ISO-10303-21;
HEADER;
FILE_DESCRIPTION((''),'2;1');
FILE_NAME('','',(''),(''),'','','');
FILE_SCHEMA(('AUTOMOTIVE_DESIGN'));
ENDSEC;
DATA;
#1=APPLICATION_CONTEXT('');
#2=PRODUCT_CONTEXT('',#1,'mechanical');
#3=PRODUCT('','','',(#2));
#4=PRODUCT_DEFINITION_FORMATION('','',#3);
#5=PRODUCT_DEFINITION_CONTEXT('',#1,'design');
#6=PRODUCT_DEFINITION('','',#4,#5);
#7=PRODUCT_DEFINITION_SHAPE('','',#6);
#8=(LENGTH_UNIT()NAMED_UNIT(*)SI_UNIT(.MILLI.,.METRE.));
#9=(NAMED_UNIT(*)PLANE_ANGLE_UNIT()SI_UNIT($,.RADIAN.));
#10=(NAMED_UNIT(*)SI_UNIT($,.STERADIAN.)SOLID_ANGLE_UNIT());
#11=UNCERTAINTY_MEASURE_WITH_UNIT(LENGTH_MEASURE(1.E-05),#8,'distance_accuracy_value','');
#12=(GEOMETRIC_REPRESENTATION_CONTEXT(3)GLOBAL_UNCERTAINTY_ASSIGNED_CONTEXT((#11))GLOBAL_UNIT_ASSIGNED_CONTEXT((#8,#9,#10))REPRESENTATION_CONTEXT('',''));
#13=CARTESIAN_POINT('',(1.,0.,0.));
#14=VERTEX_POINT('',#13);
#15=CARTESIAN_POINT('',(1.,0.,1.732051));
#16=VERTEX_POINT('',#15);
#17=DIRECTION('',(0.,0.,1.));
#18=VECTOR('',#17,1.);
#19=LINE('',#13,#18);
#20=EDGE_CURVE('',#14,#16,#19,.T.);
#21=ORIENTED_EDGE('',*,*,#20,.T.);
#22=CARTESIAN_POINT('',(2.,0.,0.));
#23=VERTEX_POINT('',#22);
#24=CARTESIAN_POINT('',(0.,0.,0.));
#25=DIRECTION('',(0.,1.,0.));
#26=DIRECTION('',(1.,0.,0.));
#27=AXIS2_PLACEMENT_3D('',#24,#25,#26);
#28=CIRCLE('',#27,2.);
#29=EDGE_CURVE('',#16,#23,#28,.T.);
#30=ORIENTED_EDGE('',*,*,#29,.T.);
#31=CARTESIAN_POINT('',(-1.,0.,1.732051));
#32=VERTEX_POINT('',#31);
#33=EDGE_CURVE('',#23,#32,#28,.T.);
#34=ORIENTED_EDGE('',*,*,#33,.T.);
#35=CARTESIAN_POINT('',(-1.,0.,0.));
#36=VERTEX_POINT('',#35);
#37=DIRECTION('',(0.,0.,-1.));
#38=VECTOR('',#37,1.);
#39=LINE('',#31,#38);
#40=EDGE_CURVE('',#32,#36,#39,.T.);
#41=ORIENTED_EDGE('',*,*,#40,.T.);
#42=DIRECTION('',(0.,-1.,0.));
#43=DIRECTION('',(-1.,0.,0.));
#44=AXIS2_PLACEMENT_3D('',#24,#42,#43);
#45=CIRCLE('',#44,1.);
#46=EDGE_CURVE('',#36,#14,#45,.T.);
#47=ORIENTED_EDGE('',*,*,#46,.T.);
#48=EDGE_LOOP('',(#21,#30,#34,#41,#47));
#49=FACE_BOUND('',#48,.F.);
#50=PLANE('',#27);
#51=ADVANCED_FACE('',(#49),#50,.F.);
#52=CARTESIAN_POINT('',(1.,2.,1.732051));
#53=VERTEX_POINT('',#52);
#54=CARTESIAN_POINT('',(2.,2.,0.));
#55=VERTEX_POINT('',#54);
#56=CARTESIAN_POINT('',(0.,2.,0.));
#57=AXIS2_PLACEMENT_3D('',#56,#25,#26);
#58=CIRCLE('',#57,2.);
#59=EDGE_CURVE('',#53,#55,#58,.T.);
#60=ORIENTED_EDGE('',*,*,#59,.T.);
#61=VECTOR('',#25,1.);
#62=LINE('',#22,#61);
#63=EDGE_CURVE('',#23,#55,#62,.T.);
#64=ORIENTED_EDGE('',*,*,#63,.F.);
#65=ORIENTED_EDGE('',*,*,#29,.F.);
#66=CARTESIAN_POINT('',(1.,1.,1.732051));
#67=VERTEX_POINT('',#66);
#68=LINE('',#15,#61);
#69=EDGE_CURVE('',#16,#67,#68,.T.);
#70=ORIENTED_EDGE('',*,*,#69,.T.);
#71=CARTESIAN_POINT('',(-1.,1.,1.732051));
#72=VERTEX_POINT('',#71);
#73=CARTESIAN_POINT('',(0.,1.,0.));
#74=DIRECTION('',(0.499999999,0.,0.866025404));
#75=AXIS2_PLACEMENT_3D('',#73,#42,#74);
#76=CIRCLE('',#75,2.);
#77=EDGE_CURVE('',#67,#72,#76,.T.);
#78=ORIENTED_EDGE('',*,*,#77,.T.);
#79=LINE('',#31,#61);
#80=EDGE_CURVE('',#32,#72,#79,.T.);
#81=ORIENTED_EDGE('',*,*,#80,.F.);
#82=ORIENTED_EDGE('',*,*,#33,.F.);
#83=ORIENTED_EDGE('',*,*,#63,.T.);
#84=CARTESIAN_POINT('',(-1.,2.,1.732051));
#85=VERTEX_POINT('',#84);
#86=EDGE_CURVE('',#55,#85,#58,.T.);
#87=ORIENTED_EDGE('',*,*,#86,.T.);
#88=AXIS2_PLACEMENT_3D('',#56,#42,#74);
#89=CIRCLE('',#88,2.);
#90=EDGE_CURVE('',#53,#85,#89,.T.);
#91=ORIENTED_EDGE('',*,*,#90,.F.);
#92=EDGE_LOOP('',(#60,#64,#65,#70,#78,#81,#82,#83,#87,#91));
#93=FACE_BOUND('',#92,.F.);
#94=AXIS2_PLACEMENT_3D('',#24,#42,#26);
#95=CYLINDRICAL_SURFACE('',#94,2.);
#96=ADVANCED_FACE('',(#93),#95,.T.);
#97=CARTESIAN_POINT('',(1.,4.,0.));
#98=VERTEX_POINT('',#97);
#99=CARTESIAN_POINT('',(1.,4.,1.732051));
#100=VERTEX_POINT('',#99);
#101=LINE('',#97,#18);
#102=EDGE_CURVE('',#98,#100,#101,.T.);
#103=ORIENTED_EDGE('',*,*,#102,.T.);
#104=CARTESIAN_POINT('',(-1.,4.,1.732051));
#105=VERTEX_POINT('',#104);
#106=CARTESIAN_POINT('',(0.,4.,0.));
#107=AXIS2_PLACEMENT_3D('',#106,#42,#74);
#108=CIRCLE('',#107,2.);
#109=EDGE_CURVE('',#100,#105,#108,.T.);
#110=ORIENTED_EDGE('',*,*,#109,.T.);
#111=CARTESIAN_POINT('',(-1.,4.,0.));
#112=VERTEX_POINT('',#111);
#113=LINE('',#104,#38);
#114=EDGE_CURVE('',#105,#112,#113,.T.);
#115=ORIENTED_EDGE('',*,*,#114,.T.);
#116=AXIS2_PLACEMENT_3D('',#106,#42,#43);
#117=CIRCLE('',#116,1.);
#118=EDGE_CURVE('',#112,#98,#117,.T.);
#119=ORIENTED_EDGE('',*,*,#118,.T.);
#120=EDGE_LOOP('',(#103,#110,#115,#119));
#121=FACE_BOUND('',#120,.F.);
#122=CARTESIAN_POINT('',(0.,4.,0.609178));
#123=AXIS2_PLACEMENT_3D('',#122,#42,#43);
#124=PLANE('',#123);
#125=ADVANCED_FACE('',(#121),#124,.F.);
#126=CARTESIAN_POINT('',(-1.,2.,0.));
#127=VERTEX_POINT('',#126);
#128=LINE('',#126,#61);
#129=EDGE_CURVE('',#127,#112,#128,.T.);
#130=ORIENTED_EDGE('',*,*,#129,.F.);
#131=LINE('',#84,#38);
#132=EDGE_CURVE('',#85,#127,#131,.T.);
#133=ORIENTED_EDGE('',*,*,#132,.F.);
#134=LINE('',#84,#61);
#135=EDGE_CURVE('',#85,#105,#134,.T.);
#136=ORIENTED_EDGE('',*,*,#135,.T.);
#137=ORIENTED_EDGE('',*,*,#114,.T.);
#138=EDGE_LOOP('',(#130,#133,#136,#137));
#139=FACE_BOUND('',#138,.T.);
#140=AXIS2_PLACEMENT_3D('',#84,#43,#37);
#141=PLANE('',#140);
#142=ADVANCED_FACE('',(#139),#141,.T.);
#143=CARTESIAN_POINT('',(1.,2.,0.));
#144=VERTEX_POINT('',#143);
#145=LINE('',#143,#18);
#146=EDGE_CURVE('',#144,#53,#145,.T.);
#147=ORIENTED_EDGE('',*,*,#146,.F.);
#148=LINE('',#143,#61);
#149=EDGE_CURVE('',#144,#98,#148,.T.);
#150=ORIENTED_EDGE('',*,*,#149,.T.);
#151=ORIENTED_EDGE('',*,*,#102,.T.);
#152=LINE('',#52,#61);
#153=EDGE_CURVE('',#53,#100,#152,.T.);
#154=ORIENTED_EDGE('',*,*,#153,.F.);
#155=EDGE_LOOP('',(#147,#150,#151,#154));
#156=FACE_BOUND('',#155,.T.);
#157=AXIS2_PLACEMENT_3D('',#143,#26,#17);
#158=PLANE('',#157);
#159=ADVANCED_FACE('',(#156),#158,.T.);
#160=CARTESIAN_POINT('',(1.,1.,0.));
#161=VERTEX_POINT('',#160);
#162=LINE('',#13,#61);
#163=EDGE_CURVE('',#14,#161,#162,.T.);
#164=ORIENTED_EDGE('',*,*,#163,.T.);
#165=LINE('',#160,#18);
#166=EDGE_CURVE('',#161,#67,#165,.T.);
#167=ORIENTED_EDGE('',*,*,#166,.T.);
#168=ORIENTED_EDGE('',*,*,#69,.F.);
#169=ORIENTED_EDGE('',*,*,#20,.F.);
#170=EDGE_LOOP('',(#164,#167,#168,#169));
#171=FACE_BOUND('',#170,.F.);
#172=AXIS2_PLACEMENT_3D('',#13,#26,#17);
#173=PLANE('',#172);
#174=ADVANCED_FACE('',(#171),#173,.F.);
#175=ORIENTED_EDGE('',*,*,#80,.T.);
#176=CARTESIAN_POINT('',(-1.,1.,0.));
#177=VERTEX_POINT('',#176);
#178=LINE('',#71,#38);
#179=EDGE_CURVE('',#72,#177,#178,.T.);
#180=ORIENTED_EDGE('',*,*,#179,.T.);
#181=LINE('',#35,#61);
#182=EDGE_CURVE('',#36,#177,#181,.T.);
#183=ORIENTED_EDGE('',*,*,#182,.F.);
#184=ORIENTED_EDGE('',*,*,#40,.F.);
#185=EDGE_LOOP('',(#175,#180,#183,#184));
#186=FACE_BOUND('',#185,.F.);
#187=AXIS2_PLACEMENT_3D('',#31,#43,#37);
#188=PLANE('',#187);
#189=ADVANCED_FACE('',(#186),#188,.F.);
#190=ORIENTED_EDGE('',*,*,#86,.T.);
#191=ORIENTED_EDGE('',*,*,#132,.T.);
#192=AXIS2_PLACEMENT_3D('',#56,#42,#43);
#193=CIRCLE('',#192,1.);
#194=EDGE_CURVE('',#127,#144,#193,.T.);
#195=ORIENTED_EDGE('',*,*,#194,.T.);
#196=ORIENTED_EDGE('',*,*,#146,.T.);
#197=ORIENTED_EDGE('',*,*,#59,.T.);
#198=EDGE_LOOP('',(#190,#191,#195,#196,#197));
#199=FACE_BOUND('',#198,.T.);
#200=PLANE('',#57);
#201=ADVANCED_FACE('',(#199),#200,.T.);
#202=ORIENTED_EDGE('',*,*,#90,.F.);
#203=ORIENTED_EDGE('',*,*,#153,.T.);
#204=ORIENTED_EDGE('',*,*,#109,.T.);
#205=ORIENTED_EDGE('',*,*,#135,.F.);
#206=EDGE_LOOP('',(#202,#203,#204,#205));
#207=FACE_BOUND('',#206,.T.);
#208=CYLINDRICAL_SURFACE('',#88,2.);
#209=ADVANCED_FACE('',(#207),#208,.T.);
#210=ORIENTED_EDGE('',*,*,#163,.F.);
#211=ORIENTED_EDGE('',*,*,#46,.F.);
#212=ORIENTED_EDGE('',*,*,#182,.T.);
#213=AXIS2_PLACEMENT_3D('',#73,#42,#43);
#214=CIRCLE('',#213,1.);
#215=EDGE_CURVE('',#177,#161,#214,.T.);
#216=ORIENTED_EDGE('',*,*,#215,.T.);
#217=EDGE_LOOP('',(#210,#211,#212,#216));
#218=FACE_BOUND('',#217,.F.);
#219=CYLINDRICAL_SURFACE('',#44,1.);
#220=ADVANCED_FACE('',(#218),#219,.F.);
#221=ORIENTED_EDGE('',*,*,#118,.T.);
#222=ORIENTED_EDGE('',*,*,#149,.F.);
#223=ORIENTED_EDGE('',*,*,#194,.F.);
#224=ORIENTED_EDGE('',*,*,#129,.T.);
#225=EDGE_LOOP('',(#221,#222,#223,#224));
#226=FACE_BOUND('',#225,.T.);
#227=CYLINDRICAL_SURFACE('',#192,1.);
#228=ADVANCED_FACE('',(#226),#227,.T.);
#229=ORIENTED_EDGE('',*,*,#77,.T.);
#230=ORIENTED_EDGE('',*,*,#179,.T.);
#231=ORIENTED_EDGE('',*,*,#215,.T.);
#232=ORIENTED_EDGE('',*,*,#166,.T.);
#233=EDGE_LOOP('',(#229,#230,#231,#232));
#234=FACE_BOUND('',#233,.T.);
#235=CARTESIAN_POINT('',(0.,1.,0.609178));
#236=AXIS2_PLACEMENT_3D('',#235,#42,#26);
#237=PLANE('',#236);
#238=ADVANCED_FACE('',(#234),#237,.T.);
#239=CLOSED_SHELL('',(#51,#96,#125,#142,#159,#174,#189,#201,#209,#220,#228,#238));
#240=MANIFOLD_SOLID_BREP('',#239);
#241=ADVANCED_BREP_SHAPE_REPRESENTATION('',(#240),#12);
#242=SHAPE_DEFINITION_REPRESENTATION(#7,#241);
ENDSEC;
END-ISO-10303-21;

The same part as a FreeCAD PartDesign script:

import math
import FreeCAD as App
import Part
import Sketcher
from FreeCAD import Vector
Q = App.Units.Quantity

doc = App.newDocument("Part")
body = doc.addObject("PartDesign::Body", "Body")

# Sketch on XZ plane
sketch1 = doc.addObject("Sketcher::SketchObject", "Sketch")
body.addObject(sketch1)
sketch1.AttachmentSupport = (doc.XZ_Plane, [""])
sketch1.MapMode = "FlatFace"
sketch1.addGeometry(Part.Circle(Vector(0, 0, 0), Vector(0, 0, 1), 2), False)
sketch1.addConstraint(Sketcher.Constraint("Coincident", 0, 3, -1, 1))
sketch1.addConstraint(Sketcher.Constraint("Diameter", 0, Q("4 mm")))
pad1 = doc.addObject("PartDesign::Pad", "Pad")
body.addObject(pad1)
pad1.Profile = sketch1
pad1.Length = 2
pad1.Reversed = True

# Sketch on XZ plane
sketch2 = doc.addObject("Sketcher::SketchObject", "Sketch001")
body.addObject(sketch2)
sketch2.AttachmentSupport = (doc.XZ_Plane, [""])
sketch2.MapMode = "FlatFace"
sketch2.AttachmentOffset = App.Placement(Vector(0, 0, -2), App.Rotation())
sketch2.addGeometry(Part.LineSegment(Vector(-1, 0, 0), Vector(-1, 1.7, 0)), False)
sketch2.addGeometry(Part.ArcOfCircle(Part.Circle(Vector(0, 0, 0), Vector(0, 0, 1), 2), math.radians(60), math.radians(120)), False)
sketch2.addGeometry(Part.LineSegment(Vector(1, 1.7, 0), Vector(1, 0, 0)), False)
sketch2.addGeometry(Part.ArcOfCircle(Part.Circle(Vector(0, 0, 0), Vector(0, 0, 1), 1), math.radians(180), math.radians(360)), False)
sketch2.addConstraint(Sketcher.Constraint("Coincident", 0, 2, 1, 2))
sketch2.addConstraint(Sketcher.Constraint("Coincident", 1, 1, 2, 1))
sketch2.addConstraint(Sketcher.Constraint("Tangent", 2, 2, 3, 2))
sketch2.addConstraint(Sketcher.Constraint("Tangent", 3, 1, 0, 1))
sketch2.addConstraint(Sketcher.Constraint("Vertical", 0))
sketch2.addConstraint(Sketcher.Constraint("Vertical", 2))
sketch2.addConstraint(Sketcher.Constraint("Coincident", 1, 3, -1, 1))
sketch2.addConstraint(Sketcher.Constraint("Coincident", 3, 3, -1, 1))
sketch2.addConstraint(Sketcher.Constraint("Radius", 1, Q("2 mm")))
sketch2.addConstraint(Sketcher.Constraint("Radius", 3, Q("1 mm")))
pad2 = doc.addObject("PartDesign::Pad", "Pad001")
body.addObject(pad2)
pad2.Profile = sketch2
pad2.Length = 2
pad2.Reversed = True

# Sketch on XZ plane
sketch3 = doc.addObject("Sketcher::SketchObject", "Sketch002")
body.addObject(sketch3)
sketch3.AttachmentSupport = (doc.XZ_Plane, [""])
sketch3.MapMode = "FlatFace"
sketch3.addGeometry(Part.LineSegment(Vector(-1, 1.7, 0), Vector(-1, 0, 0)), False)
sketch3.addGeometry(Part.ArcOfCircle(Part.Circle(Vector(0, 0, 0), Vector(0, 0, 1), 1), math.radians(180), math.radians(360)), False)
sketch3.addGeometry(Part.LineSegment(Vector(1, 0, 0), Vector(1, 1.7, 0)), False)
sketch3.addGeometry(Part.ArcOfCircle(Part.Circle(Vector(0, 0, 0), Vector(0, 0, 1), 2), math.radians(60), math.radians(120)), False)
sketch3.addConstraint(Sketcher.Constraint("Tangent", 0, 2, 1, 1))
sketch3.addConstraint(Sketcher.Constraint("Tangent", 1, 2, 2, 1))
sketch3.addConstraint(Sketcher.Constraint("Coincident", 2, 2, 3, 1))
sketch3.addConstraint(Sketcher.Constraint("Coincident", 3, 2, 0, 1))
sketch3.addConstraint(Sketcher.Constraint("Vertical", 0))
sketch3.addConstraint(Sketcher.Constraint("Vertical", 2))
sketch3.addConstraint(Sketcher.Constraint("Coincident", 1, 3, -1, 1))
sketch3.addConstraint(Sketcher.Constraint("Coincident", 3, 3, -1, 1))
sketch3.addConstraint(Sketcher.Constraint("Radius", 1, Q("1 mm")))
sketch3.addConstraint(Sketcher.Constraint("Radius", 3, Q("2 mm")))
pocket1 = doc.addObject("PartDesign::Pocket", "Pocket")
body.addObject(pocket1)
pocket1.Profile = sketch3
pocket1.Length = 1

doc.recompute()
